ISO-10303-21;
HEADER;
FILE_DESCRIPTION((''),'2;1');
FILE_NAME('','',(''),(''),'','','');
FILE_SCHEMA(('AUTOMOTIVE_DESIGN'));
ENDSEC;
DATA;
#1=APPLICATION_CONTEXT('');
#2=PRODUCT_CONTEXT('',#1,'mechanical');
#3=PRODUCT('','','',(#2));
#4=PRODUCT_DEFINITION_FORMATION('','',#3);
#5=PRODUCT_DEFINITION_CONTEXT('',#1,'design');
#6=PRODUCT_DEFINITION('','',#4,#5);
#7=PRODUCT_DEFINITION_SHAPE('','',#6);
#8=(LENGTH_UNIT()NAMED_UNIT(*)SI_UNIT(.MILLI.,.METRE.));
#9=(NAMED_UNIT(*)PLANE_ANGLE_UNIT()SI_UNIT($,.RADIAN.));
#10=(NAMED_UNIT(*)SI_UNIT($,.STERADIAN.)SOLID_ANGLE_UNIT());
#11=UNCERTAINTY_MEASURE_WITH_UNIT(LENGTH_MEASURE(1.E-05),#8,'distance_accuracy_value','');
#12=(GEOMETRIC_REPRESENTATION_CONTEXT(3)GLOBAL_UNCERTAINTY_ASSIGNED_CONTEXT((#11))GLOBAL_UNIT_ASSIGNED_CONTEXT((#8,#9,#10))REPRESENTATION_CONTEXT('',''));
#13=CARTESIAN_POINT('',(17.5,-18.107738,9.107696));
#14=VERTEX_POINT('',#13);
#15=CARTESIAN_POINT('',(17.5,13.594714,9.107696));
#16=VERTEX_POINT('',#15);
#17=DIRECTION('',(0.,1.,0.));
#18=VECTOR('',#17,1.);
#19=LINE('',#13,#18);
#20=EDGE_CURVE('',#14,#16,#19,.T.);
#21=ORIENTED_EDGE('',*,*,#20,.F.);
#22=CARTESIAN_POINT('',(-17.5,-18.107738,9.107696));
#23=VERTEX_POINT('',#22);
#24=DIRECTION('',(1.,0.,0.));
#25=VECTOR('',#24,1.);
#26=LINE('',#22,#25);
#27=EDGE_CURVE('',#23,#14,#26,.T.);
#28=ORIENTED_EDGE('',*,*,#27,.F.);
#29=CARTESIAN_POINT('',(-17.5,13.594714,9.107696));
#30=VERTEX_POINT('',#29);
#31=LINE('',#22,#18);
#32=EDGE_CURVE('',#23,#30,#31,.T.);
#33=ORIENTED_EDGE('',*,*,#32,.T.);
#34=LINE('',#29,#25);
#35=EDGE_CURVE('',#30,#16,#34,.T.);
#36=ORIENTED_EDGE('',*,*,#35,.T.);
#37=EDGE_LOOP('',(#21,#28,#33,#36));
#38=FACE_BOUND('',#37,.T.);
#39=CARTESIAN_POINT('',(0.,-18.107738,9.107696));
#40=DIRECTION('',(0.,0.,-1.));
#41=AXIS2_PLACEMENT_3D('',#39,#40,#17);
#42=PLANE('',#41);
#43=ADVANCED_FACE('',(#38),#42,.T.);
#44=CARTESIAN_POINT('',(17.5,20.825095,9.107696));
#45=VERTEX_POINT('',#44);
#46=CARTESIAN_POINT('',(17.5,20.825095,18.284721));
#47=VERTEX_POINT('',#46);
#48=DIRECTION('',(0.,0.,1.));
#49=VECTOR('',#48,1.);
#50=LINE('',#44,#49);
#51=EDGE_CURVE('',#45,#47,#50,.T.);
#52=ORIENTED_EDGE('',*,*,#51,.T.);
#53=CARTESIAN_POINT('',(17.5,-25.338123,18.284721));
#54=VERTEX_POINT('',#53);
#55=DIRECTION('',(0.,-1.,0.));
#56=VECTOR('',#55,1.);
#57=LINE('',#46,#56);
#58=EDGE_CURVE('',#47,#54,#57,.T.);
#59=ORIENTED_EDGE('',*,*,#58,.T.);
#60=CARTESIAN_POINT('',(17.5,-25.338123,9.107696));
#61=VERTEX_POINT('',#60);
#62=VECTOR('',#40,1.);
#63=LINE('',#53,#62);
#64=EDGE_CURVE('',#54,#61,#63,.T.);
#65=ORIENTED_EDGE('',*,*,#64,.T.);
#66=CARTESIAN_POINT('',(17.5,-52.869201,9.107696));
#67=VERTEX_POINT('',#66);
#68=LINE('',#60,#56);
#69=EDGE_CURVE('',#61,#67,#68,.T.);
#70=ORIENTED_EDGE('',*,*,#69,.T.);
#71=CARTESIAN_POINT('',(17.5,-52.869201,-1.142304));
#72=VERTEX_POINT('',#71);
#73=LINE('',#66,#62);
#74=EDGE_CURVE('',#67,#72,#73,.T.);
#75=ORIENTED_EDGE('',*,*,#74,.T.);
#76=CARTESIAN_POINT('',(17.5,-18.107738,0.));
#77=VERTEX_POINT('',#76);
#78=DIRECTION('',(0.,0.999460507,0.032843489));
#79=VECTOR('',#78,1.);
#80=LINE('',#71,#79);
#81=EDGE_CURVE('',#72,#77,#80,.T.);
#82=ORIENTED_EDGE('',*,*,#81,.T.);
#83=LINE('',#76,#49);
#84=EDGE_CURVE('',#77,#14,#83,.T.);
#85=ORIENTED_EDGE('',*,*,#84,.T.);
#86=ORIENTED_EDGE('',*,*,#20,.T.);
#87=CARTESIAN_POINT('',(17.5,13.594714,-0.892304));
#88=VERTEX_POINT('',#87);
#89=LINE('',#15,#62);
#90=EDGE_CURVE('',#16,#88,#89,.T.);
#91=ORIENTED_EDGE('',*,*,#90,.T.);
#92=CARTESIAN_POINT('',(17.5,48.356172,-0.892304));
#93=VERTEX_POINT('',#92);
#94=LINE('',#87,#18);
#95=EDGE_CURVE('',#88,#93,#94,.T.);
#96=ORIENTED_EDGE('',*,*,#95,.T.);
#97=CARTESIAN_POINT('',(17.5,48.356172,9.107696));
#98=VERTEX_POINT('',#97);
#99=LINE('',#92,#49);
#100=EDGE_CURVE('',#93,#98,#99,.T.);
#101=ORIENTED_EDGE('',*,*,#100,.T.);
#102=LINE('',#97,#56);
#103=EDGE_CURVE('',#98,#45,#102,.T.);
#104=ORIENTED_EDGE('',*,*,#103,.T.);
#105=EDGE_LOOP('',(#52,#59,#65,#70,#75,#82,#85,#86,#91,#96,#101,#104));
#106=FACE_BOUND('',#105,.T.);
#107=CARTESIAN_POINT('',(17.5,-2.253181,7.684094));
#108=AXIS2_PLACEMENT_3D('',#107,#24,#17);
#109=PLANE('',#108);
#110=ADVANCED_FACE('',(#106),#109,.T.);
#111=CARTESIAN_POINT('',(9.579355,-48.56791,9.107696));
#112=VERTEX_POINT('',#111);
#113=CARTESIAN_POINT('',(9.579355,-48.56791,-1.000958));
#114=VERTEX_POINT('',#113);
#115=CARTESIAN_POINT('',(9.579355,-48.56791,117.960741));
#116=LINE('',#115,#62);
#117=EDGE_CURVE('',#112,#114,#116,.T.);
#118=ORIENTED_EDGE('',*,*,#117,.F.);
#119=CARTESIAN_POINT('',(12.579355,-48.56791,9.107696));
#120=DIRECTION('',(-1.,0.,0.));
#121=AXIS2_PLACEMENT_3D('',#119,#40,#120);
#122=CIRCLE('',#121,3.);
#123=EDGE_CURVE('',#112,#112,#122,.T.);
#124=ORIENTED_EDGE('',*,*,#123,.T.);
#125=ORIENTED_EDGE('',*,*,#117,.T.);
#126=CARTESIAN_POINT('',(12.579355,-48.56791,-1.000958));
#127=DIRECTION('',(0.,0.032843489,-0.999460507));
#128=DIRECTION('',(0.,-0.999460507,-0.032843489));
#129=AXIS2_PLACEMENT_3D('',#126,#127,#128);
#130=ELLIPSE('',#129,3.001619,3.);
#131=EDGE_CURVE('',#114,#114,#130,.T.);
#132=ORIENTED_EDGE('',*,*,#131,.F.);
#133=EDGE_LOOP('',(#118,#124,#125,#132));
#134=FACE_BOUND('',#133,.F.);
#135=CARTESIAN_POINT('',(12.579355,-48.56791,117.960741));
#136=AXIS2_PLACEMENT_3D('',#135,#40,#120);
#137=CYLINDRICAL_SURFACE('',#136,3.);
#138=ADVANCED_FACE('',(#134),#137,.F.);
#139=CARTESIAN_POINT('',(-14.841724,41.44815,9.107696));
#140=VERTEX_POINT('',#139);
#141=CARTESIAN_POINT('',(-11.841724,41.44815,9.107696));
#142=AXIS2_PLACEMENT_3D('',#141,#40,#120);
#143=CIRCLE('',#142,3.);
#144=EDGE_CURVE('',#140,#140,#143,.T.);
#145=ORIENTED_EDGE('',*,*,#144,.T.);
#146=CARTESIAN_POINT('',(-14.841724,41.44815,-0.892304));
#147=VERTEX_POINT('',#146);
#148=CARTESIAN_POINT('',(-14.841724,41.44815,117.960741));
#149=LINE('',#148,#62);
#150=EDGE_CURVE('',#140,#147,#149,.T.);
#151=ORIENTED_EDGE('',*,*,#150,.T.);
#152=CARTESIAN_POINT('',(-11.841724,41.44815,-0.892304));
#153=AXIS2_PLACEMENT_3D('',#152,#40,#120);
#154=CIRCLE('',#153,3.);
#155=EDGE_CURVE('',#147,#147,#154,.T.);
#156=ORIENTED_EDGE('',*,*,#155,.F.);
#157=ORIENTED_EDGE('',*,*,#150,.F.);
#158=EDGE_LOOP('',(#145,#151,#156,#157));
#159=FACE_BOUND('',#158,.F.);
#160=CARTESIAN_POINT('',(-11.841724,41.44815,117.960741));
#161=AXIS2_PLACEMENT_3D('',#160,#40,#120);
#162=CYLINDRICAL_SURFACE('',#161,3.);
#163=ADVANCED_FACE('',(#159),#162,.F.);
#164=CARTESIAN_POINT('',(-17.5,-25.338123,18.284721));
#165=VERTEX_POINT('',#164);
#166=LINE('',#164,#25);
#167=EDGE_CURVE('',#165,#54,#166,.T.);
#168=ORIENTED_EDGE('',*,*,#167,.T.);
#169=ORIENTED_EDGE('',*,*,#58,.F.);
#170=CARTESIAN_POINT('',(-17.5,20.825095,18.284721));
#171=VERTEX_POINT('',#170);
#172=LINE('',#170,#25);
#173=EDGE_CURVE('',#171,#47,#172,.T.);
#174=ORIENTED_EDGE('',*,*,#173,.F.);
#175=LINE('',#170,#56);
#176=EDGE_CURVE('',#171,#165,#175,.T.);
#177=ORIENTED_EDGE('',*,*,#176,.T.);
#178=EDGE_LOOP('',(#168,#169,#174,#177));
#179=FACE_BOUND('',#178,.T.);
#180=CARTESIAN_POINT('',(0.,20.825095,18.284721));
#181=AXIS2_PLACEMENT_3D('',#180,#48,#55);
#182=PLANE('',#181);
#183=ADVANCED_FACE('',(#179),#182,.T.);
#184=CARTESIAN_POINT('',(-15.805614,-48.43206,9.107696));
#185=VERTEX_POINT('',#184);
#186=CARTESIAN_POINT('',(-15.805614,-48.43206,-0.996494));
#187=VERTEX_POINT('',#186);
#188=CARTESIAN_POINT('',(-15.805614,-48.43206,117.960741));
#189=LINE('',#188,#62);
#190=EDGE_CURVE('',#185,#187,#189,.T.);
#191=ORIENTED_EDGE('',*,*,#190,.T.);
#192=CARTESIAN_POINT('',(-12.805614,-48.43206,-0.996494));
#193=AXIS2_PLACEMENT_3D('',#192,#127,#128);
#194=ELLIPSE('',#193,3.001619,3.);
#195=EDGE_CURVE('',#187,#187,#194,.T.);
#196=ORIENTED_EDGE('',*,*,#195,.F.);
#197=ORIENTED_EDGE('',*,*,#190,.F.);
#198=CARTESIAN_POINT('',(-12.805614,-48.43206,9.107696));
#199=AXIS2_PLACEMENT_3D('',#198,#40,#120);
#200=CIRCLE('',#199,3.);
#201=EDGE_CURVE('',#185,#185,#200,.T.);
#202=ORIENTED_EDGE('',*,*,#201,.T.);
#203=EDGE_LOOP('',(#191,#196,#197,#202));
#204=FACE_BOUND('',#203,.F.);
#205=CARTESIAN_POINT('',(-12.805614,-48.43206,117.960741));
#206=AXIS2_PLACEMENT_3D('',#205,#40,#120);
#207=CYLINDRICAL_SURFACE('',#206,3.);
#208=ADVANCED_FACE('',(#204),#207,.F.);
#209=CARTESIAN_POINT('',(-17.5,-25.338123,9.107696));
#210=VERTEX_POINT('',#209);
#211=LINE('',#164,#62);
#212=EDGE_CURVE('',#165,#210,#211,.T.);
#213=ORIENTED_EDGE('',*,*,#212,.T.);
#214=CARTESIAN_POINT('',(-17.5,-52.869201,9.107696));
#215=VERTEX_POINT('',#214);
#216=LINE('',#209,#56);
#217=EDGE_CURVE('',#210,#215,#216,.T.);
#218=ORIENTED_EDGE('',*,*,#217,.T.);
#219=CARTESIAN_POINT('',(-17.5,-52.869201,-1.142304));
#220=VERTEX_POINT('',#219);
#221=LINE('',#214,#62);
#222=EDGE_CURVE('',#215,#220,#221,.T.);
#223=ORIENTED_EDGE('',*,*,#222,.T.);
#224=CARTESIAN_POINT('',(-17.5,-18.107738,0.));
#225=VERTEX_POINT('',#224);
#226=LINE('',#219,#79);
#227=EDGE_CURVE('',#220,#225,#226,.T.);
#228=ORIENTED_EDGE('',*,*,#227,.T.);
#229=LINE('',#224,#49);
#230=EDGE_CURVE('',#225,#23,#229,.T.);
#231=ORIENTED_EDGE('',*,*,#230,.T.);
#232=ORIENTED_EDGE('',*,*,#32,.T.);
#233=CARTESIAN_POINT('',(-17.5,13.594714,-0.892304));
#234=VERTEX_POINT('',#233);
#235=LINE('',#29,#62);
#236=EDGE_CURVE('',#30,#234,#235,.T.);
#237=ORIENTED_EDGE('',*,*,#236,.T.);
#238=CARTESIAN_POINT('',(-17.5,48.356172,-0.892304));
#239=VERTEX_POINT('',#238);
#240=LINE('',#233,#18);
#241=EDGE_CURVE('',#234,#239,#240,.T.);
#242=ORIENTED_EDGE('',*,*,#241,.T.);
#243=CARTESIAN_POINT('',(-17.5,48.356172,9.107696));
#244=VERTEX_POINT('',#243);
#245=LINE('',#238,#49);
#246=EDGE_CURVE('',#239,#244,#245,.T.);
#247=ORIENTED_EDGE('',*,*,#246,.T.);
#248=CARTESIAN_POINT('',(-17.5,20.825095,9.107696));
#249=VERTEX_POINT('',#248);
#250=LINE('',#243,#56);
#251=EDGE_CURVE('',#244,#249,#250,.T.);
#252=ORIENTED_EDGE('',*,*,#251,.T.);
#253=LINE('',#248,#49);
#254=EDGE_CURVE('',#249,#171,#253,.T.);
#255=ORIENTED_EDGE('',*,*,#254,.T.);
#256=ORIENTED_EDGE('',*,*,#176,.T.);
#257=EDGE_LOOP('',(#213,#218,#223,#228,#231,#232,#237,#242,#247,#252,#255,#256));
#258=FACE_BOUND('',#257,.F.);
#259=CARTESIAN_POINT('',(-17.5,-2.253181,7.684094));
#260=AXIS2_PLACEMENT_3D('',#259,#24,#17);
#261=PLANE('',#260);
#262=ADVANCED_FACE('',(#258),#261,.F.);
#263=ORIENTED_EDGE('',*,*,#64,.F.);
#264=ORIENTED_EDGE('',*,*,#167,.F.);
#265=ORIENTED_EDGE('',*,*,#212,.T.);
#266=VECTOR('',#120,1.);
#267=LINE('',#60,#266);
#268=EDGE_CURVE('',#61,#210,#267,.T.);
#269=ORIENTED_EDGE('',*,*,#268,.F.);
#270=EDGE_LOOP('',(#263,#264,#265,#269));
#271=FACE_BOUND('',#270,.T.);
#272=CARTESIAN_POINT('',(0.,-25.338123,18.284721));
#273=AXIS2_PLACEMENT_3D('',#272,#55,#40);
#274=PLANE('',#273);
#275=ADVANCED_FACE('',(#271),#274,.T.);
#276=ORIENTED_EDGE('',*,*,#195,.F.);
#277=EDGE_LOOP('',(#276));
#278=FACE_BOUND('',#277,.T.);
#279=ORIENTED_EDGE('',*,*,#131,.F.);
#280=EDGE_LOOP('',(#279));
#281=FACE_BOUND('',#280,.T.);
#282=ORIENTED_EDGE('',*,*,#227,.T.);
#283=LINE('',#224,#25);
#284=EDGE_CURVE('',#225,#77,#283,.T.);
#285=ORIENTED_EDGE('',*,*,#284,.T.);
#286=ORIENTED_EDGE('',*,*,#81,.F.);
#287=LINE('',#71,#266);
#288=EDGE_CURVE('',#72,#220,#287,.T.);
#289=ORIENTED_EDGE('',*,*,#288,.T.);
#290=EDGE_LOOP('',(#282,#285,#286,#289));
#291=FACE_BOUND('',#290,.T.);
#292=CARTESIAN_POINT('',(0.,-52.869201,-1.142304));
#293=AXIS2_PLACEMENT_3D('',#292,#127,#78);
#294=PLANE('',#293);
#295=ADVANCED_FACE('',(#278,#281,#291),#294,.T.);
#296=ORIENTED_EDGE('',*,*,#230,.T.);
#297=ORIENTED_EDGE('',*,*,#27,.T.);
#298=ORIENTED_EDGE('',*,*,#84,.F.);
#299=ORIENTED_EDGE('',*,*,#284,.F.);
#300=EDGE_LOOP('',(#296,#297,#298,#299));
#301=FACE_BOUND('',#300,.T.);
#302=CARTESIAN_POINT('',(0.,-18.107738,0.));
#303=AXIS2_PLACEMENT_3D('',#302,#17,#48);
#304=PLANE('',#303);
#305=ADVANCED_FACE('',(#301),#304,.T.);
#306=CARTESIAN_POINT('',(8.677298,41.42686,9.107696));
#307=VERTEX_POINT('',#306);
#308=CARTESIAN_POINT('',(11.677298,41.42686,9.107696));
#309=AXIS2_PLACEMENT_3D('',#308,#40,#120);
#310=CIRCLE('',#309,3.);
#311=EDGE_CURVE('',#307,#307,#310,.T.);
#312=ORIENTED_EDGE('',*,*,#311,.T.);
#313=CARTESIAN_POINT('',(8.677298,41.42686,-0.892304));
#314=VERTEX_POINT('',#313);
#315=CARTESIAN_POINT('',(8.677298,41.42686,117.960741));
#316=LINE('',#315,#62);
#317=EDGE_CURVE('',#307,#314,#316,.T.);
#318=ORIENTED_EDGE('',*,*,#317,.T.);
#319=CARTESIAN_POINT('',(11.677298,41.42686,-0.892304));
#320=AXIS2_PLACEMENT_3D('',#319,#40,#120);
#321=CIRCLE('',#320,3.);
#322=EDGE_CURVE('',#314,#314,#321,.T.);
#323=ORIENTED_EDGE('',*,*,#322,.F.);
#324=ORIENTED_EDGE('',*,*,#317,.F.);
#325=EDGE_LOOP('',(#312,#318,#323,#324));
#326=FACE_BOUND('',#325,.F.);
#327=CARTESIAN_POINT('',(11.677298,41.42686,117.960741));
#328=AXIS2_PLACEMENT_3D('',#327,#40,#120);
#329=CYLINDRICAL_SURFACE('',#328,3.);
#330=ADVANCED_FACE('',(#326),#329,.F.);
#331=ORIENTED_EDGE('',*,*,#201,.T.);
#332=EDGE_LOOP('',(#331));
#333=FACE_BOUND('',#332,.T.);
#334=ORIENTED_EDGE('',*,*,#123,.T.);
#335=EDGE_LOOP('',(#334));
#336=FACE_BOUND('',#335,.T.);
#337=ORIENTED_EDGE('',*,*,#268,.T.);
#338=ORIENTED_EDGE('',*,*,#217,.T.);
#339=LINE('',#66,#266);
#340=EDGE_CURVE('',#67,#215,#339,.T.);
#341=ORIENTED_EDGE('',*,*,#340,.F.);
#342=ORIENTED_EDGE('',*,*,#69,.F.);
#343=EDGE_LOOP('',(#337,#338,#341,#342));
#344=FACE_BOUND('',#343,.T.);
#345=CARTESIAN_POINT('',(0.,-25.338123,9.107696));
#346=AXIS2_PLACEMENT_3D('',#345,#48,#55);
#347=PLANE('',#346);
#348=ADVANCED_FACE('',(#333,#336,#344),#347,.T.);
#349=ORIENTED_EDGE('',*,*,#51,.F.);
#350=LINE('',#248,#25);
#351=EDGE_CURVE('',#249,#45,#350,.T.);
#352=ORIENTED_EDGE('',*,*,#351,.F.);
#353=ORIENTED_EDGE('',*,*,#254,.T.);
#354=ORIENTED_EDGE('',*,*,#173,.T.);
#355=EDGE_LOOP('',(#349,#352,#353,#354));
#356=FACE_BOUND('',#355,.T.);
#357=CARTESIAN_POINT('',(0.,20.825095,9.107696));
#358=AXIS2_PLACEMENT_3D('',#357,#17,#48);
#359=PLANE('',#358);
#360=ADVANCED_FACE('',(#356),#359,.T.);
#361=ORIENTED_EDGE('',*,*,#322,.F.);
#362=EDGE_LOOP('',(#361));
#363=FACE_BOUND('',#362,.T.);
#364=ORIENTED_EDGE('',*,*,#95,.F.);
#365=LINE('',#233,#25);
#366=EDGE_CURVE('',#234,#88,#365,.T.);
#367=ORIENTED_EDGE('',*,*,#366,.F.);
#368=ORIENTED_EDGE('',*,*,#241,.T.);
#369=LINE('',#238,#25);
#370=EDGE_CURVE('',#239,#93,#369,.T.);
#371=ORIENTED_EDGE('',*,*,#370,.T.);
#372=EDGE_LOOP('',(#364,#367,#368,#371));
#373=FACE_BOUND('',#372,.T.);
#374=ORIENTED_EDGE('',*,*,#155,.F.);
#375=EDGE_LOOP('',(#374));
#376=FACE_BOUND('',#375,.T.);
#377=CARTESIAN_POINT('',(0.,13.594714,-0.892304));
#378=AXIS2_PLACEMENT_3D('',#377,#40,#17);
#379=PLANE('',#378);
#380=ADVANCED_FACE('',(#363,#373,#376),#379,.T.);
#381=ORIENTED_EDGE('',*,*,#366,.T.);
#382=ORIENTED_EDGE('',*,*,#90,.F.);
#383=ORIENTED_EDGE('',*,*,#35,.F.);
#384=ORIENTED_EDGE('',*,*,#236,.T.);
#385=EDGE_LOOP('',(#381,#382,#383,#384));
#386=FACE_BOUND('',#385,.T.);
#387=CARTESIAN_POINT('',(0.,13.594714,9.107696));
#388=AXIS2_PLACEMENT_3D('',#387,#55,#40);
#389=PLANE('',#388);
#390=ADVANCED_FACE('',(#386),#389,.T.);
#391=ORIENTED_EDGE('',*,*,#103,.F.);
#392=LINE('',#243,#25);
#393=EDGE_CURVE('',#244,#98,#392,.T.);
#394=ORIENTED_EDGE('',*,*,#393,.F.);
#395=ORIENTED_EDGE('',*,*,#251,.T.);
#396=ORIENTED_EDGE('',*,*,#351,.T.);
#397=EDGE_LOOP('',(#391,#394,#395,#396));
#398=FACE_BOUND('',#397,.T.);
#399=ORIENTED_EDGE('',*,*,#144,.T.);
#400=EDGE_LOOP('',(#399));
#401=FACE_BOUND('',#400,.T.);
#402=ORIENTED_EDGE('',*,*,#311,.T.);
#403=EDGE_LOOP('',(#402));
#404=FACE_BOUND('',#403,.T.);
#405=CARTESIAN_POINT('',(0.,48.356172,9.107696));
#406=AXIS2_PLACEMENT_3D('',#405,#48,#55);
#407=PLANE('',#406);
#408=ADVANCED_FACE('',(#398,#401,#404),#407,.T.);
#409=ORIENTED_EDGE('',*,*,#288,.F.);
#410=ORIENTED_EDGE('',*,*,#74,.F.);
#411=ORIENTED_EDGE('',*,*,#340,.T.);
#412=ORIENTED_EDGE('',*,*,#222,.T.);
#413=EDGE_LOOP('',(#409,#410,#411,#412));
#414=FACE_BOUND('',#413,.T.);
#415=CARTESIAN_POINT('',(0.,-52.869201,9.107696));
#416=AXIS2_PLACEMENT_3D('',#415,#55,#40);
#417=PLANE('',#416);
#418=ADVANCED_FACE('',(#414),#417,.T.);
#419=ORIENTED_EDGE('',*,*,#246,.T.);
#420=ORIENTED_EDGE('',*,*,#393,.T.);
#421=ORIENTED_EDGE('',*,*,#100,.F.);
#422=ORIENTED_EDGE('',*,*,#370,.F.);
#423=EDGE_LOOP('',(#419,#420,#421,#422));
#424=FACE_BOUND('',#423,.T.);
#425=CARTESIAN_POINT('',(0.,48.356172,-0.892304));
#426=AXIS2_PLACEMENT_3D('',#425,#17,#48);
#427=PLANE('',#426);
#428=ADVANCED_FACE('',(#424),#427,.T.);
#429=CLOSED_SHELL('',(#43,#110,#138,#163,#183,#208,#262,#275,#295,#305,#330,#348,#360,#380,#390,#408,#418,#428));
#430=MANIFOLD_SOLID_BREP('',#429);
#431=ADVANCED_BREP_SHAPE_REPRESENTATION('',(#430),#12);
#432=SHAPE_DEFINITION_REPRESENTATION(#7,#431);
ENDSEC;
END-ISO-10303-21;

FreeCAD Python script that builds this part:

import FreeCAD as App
import Part
import Sketcher


def add_polygon(sketch, points):
    """Adds a closed chain of lines whose ends are joined by coincident constraints."""
    first, n = sketch.GeometryCount, len(points)
    for a, b in zip(points, points[1:] + points[:1]):
        sketch.addGeometry(Part.LineSegment(App.Vector(*a, 0), App.Vector(*b, 0)), False)
    for i in range(n):
        sketch.addConstraint(Sketcher.Constraint("Coincident", first + i, 2, first + (i + 1) % n, 1))

doc = App.newDocument("Part")
body = doc.addObject("PartDesign::Body", "Body")

sketch1 = body.newObject("Sketcher::SketchObject", "Sketch")
sketch1.AttachmentSupport = (doc.getObject("YZ_Plane"), [""])
sketch1.MapMode = "FlatFace"
add_polygon(sketch1, [(-53, -1), (-18, 0), (-18, 9), (14, 9), (14, -1), (48, -1), (48, 9), (21, 9), (21, 18), (-25, 18), (-25, 9), (-53, 9)])
sketch1.addConstraint(Sketcher.Constraint("Vertical", 1))
sketch1.addConstraint(Sketcher.Constraint("Horizontal", 2))
sketch1.addConstraint(Sketcher.Constraint("Vertical", 3))
sketch1.addConstraint(Sketcher.Constraint("Horizontal", 4))
sketch1.addConstraint(Sketcher.Constraint("Vertical", 5))
sketch1.addConstraint(Sketcher.Constraint("Horizontal", 6))
sketch1.addConstraint(Sketcher.Constraint("Vertical", 7))
sketch1.addConstraint(Sketcher.Constraint("Horizontal", 8))
sketch1.addConstraint(Sketcher.Constraint("Vertical", 9))
sketch1.addConstraint(Sketcher.Constraint("Horizontal", 10))
sketch1.addConstraint(Sketcher.Constraint("Vertical", 11))
sketch1.addConstraint(Sketcher.Constraint("PointOnObject", 0, 2, -1))
sketch1.addConstraint(Sketcher.Constraint("Horizontal", 2, 2, 5, 2))
sketch1.addConstraint(Sketcher.Constraint("Horizontal", 6, 2, 9, 2))
sketch1.addConstraint(Sketcher.Constraint("Equal", 6, 10))
sketch1.addConstraint(Sketcher.Constraint("DistanceY", 3, 2, 3, 1, 10.0))
sketch1.addConstraint(Sketcher.Constraint("DistanceY", 11, 2, 11, 1, 10.25))
sketch1.addConstraint(Sketcher.Constraint("DistanceX", 4, 1, 4, 2, 34.761458))
sketch1.addConstraint(Sketcher.Constraint("DistanceX", 10, 2, -1, 1, 52.869201))
sketch1.addConstraint(Sketcher.Constraint("DistanceX", 2, 1, 2, 2, 31.702452))
sketch1.addConstraint(Sketcher.Constraint("DistanceX", 6, 2, 6, 1, 27.531077))
sketch1.addConstraint(Sketcher.Constraint("DistanceX", 8, 2, 8, 1, 46.163218))
sketch1.addConstraint(Sketcher.Constraint("DistanceY", 1, 1, 1, 2, 9.107696))
sketch1.addConstraint(Sketcher.Constraint("DistanceY", 7, 1, 7, 2, 9.177025))
pad1 = body.newObject("PartDesign::Pad", "Pad")
pad1.Profile = sketch1
pad1.Length = 35
pad1.Midplane = True

sketch2 = body.newObject("Sketcher::SketchObject", "Sketch001")
sketch2.AttachmentSupport = (doc.getObject("XY_Plane"), [""])
sketch2.MapMode = "FlatFace"
sketch2.AttachmentOffset = App.Placement(App.Vector(0, 0, 9.107696), App.Rotation())
sketch2.addGeometry(Part.Circle(App.Vector(12.6, -48.6, 0), App.Vector(0, 0, 1), 3), False)
sketch2.addGeometry(Part.Circle(App.Vector(-12.8, -48.4, 0), App.Vector(0, 0, 1), 3), False)
sketch2.addGeometry(Part.Circle(App.Vector(-11.8, 41.4, 0), App.Vector(0, 0, 1), 3), False)
sketch2.addGeometry(Part.Circle(App.Vector(11.7, 41.4, 0), App.Vector(0, 0, 1), 3), False)
sketch2.addConstraint(Sketcher.Constraint("Equal", 0, 1))
sketch2.addConstraint(Sketcher.Constraint("Equal", 1, 2))
sketch2.addConstraint(Sketcher.Constraint("Equal", 2, 3))
sketch2.addConstraint(Sketcher.Constraint("Diameter", 0, 6.0))
sketch2.addConstraint(Sketcher.Constraint("DistanceY", 0, 3, -1, 1, 48.56791))
sketch2.addConstraint(Sketcher.Constraint("DistanceY", 1, 3, -1, 1, 48.43206))
sketch2.addConstraint(Sketcher.Constraint("DistanceY", -1, 1, 2, 3, 41.44815))
sketch2.addConstraint(Sketcher.Constraint("DistanceY", -1, 1, 3, 3, 41.42686))
sketch2.addConstraint(Sketcher.Constraint("DistanceX", 1, 3, 0, 3, 25.384969))
sketch2.addConstraint(Sketcher.Constraint("DistanceX", 1, 3, 2, 3, 0.96389))
sketch2.addConstraint(Sketcher.Constraint("DistanceX", 2, 3, 3, 3, 23.519022))
sketch2.addConstraint(Sketcher.Constraint("DistanceX", -1, 1, 0, 3, 12.579355))
doc.recompute()
hole = body.newObject("PartDesign::Hole", "Hole")
hole.Profile = sketch2
hole.ThreadType = "None"
hole.Diameter = 6
hole.DepthType = "ThroughAll"

doc.recompute()
